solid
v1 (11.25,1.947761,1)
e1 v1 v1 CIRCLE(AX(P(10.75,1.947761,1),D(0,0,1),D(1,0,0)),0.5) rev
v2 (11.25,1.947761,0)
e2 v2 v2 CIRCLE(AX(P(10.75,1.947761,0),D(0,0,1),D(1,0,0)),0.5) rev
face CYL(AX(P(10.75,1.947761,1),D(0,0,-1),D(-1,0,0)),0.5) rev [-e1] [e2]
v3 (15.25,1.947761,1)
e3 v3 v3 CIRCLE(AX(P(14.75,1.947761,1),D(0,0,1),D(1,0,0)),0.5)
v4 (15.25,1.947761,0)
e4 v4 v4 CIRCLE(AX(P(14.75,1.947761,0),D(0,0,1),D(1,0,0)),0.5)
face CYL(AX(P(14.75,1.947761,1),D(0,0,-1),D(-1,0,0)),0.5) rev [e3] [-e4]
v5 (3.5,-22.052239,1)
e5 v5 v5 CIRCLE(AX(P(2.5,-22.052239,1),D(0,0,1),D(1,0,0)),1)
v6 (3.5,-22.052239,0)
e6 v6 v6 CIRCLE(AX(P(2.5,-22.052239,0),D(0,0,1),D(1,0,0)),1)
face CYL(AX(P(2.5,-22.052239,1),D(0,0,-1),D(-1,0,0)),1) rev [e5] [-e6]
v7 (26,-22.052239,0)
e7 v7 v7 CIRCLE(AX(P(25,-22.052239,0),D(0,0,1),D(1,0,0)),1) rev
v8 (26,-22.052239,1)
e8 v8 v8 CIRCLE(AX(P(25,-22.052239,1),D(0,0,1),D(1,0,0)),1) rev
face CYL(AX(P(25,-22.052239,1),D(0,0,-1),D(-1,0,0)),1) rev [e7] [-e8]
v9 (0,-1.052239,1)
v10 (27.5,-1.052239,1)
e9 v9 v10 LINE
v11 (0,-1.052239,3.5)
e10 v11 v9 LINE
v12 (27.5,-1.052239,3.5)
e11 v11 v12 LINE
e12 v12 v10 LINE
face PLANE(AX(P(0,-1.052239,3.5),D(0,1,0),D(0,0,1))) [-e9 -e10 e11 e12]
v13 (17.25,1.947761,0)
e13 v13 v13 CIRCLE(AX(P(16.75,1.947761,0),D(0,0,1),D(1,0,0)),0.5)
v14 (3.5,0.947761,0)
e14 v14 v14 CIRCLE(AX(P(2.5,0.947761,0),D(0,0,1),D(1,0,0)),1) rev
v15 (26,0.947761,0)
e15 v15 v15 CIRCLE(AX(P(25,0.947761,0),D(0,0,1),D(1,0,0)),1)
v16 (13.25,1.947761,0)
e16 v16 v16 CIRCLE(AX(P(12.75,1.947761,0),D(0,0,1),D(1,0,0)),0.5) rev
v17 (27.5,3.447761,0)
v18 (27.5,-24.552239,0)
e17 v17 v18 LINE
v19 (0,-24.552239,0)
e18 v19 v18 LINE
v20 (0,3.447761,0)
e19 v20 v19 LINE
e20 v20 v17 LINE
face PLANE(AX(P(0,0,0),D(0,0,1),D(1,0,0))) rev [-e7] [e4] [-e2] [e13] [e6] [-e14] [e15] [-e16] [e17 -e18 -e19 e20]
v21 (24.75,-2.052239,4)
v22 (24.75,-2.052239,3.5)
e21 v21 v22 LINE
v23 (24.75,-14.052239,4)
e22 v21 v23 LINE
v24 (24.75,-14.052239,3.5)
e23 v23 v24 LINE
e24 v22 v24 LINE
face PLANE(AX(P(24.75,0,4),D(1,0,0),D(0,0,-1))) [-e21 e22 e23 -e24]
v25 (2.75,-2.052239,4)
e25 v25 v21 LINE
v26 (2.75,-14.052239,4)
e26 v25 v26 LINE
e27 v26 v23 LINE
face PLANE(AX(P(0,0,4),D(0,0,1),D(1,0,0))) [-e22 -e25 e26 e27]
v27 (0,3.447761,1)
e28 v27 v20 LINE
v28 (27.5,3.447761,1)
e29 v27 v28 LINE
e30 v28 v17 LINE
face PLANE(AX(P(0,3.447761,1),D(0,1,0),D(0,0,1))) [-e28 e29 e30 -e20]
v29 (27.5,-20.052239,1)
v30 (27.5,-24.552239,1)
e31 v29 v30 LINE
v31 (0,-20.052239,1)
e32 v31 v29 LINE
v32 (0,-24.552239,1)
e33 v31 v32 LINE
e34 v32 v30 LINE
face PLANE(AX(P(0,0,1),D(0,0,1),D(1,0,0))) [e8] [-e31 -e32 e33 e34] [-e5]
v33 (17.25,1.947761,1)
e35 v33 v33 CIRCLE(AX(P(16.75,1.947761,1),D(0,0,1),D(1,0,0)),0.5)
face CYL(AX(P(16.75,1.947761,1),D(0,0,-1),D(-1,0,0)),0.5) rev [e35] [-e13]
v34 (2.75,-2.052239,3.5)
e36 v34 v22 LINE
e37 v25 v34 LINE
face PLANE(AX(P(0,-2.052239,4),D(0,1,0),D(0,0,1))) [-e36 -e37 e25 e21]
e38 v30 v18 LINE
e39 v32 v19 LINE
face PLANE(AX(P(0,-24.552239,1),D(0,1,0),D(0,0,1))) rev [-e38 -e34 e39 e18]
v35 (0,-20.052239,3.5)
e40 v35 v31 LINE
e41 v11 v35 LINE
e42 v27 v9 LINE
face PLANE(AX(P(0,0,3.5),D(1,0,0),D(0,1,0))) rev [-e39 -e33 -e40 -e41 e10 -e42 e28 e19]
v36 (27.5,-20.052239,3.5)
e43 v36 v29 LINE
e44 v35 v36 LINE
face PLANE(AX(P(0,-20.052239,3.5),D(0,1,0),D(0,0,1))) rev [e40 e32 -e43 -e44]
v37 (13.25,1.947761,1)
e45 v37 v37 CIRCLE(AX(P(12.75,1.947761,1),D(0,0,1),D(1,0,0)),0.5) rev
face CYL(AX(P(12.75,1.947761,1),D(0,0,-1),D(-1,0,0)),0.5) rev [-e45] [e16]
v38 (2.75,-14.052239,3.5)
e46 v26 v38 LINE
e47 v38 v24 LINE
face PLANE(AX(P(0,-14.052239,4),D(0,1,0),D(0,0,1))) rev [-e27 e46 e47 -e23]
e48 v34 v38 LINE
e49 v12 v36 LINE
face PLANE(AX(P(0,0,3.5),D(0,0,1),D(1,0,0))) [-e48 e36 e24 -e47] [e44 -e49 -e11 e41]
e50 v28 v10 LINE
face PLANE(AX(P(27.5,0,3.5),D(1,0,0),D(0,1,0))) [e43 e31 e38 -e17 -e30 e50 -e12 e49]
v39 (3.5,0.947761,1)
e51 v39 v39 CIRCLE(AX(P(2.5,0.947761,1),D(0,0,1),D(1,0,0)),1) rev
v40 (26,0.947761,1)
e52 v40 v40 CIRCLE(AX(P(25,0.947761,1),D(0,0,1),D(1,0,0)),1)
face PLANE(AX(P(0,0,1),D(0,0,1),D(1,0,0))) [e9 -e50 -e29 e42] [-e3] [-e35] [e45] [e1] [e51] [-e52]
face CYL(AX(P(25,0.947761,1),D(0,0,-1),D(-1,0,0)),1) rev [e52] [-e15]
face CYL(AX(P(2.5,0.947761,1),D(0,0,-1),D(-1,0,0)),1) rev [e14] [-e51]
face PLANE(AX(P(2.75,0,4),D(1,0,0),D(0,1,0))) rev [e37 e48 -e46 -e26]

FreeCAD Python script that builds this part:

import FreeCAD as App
import Part
import Sketcher

V = App.Vector


def add_polygon(sketch, points):
    """Adds a closed chain of lines whose ends are joined by coincident constraints."""
    first, n = sketch.GeometryCount, len(points)
    for a, b in zip(points, points[1:] + points[:1]):
        sketch.addGeometry(Part.LineSegment(App.Vector(*a, 0), App.Vector(*b, 0)), False)
    for i in range(n):
        sketch.addConstraint(Sketcher.Constraint("Coincident", first + i, 2, first + (i + 1) % n, 1))

doc = App.newDocument("Part")
body = doc.addObject("PartDesign::Body", "Body")

# Sketch on XY plane
sketch1 = body.newObject("Sketcher::SketchObject", "Sketch")
sketch1.AttachmentSupport = (doc.getObject("XY_Plane"), [""])
sketch1.MapMode = "FlatFace"
add_polygon(sketch1, [(0, -1), (0, -20), (28, -20), (28, -1)])  # lines 0-3
add_polygon(sketch1, [(25, -14), (3, -14), (3, -2), (25, -2)])  # lines 4-7
sketch1.addConstraint(Sketcher.Constraint("Vertical", 0))
sketch1.addConstraint(Sketcher.Constraint("Horizontal", 1))
sketch1.addConstraint(Sketcher.Constraint("Vertical", 2))
sketch1.addConstraint(Sketcher.Constraint("Horizontal", 3))
sketch1.addConstraint(Sketcher.Constraint("Horizontal", 4))
sketch1.addConstraint(Sketcher.Constraint("Vertical", 5))
sketch1.addConstraint(Sketcher.Constraint("Horizontal", 6))
sketch1.addConstraint(Sketcher.Constraint("Vertical", 7))
sketch1.addConstraint(Sketcher.Constraint("PointOnObject", 0, 2, -2))
sketch1.addConstraint(Sketcher.Constraint("DistanceX", 4, 2, 4, 1, 22.0))
sketch1.addConstraint(Sketcher.Constraint("DistanceY", 0, 2, 0, 1, 19.0))
sketch1.addConstraint(Sketcher.Constraint("DistanceY", 5, 1, 5, 2, 12.0))
sketch1.addConstraint(Sketcher.Constraint("DistanceX", 1, 1, 1, 2, 27.5))
sketch1.addConstraint(Sketcher.Constraint("DistanceY", 0, 2, 4, 2, 6.0))
sketch1.addConstraint(Sketcher.Constraint("DistanceX", -1, 1, 4, 2, 2.75))
sketch1.addConstraint(Sketcher.Constraint("DistanceY", 0, 2, -1, 1, 20.052239))
pad1 = body.newObject("PartDesign::Pad", "Pad")
pad1.Profile = sketch1
pad1.Length = 3.5

# Sketch on XY plane
sketch2 = body.newObject("Sketcher::SketchObject", "Sketch001")
sketch2.AttachmentSupport = (doc.getObject("XY_Plane"), [""])
sketch2.MapMode = "FlatFace"
add_polygon(sketch2, [(0, 3.4), (0, -1.1), (27.5, -1.1), (27.5, 3.4)])  # lines 0-3
sketch2.addGeometry(Part.Circle(V(2.5, 0.9, 0), V(0, 0, 1), 1), False)  # 4
sketch2.addGeometry(Part.Circle(V(25, 0.9, 0), V(0, 0, 1), 1), False)  # 5
sketch2.addGeometry(Part.Circle(V(10.8, 1.9, 0), V(0, 0, 1), 0.5), False)  # 6
sketch2.addGeometry(Part.Circle(V(12.8, 1.9, 0), V(0, 0, 1), 0.5), False)  # 7
sketch2.addGeometry(Part.Circle(V(14.8, 1.9, 0), V(0, 0, 1), 0.5), False)  # 8
sketch2.addGeometry(Part.Circle(V(16.8, 1.9, 0), V(0, 0, 1), 0.5), False)  # 9
add_polygon(sketch2, [(0, -20.1), (0, -24.6), (27.5, -24.6), (27.5, -20.1)])  # lines 10-13
sketch2.addGeometry(Part.Circle(V(2.5, -22.1, 0), V(0, 0, 1), 1), False)  # 14
sketch2.addGeometry(Part.Circle(V(25, -22.1, 0), V(0, 0, 1), 1), False)  # 15
sketch2.addConstraint(Sketcher.Constraint("Vertical", 0))
sketch2.addConstraint(Sketcher.Constraint("Horizontal", 1))
sketch2.addConstraint(Sketcher.Constraint("Vertical", 2))
sketch2.addConstraint(Sketcher.Constraint("Horizontal", 3))
sketch2.addConstraint(Sketcher.Constraint("Vertical", 10))
sketch2.addConstraint(Sketcher.Constraint("Horizontal", 11))
sketch2.addConstraint(Sketcher.Constraint("Vertical", 12))
sketch2.addConstraint(Sketcher.Constraint("Horizontal", 13))
sketch2.addConstraint(Sketcher.Constraint("Equal", 4, 5))
sketch2.addConstraint(Sketcher.Constraint("Equal", 6, 7))
sketch2.addConstraint(Sketcher.Constraint("Equal", 7, 8))
sketch2.addConstraint(Sketcher.Constraint("Equal", 8, 9))
sketch2.addConstraint(Sketcher.Constraint("Equal", 5, 14))
sketch2.addConstraint(Sketcher.Constraint("Equal", 14, 15))
sketch2.addConstraint(Sketcher.Constraint("PointOnObject", 0, 2, -2))
sketch2.addConstraint(Sketcher.Constraint("PointOnObject", 10, 2, -2))
sketch2.addConstraint(Sketcher.Constraint("Horizontal", 4, 3, 5, 3))
sketch2.addConstraint(Sketcher.Constraint("Horizontal", 6, 3, 7, 3))
sketch2.addConstraint(Sketcher.Constraint("Horizontal", 7, 3, 8, 3))
sketch2.addConstraint(Sketcher.Constraint("Horizontal", 8, 3, 9, 3))
sketch2.addConstraint(Sketcher.Constraint("Horizontal", 14, 3, 15, 3))
sketch2.addConstraint(Sketcher.Constraint("Vertical", 4, 3, 14, 3))
sketch2.addConstraint(Sketcher.Constraint("Vertical", 5, 3, 15, 3))
sketch2.addConstraint(Sketcher.Constraint("Vertical", 2, 2, 11, 2))
sketch2.addConstraint(Sketcher.Constraint("Equal", 2, 10))
sketch2.addConstraint(Sketcher.Constraint("Diameter", 4, 2.0))
sketch2.addConstraint(Sketcher.Constraint("Diameter", 6, 1.0))
sketch2.addConstraint(Sketcher.Constraint("DistanceX", 1, 1, 1, 2, 27.5))
sketch2.addConstraint(Sketcher.Constraint("DistanceY", 0, 2, 0, 1, 4.5))
sketch2.addConstraint(Sketcher.Constraint("DistanceX", -1, 1, 5, 3, 25.0))
sketch2.addConstraint(Sketcher.Constraint("DistanceY", 4, 3, 6, 3, 1.0))
sketch2.addConstraint(Sketcher.Constraint("DistanceX", 6, 3, 7, 3, 2.0))
sketch2.addConstraint(Sketcher.Constraint("DistanceX", 7, 3, 8, 3, 2.0))
sketch2.addConstraint(Sketcher.Constraint("DistanceX", 8, 3, 9, 3, 2.0))
sketch2.addConstraint(Sketcher.Constraint("DistanceY", 14, 3, 4, 3, 23.0))
sketch2.addConstraint(Sketcher.Constraint("DistanceY", 0, 2, 4, 3, 2.0))
sketch2.addConstraint(Sketcher.Constraint("DistanceY", 10, 2, 3, 2, 28.0))
sketch2.addConstraint(Sketcher.Constraint("DistanceX", 14, 3, 11, 2, 25.0))
sketch2.addConstraint(Sketcher.Constraint("DistanceX", -1, 1, 6, 3, 10.75))
sketch2.addConstraint(Sketcher.Constraint("DistanceY", -1, 1, 4, 3, 0.947761))
pad2 = body.newObject("PartDesign::Pad", "Pad001")
pad2.Profile = sketch2
pad2.Length = 1

# Sketch on XY plane
sketch3 = body.newObject("Sketcher::SketchObject", "Sketch002")
sketch3.AttachmentSupport = (doc.getObject("XY_Plane"), [""])
sketch3.MapMode = "FlatFace"
add_polygon(sketch3, [(3, -2), (3, -14), (25, -14), (25, -2)])  # lines 0-3
sketch3.addConstraint(Sketcher.Constraint("Vertical", 0))
sketch3.addConstraint(Sketcher.Constraint("Horizontal", 1))
sketch3.addConstraint(Sketcher.Constraint("Vertical", 2))
sketch3.addConstraint(Sketcher.Constraint("Horizontal", 3))
sketch3.addConstraint(Sketcher.Constraint("DistanceX", 1, 1, 1, 2, 22.0))
sketch3.addConstraint(Sketcher.Constraint("DistanceY", 0, 2, 0, 1, 12.0))
sketch3.addConstraint(Sketcher.Constraint("DistanceX", -1, 1, 0, 2, 2.75))
sketch3.addConstraint(Sketcher.Constraint("DistanceY", 0, 2, -1, 1, 14.052239))
pad3 = body.newObject("PartDesign::Pad", "Pad002")
pad3.Profile = sketch3
pad3.Length = 4

doc.recompute()
